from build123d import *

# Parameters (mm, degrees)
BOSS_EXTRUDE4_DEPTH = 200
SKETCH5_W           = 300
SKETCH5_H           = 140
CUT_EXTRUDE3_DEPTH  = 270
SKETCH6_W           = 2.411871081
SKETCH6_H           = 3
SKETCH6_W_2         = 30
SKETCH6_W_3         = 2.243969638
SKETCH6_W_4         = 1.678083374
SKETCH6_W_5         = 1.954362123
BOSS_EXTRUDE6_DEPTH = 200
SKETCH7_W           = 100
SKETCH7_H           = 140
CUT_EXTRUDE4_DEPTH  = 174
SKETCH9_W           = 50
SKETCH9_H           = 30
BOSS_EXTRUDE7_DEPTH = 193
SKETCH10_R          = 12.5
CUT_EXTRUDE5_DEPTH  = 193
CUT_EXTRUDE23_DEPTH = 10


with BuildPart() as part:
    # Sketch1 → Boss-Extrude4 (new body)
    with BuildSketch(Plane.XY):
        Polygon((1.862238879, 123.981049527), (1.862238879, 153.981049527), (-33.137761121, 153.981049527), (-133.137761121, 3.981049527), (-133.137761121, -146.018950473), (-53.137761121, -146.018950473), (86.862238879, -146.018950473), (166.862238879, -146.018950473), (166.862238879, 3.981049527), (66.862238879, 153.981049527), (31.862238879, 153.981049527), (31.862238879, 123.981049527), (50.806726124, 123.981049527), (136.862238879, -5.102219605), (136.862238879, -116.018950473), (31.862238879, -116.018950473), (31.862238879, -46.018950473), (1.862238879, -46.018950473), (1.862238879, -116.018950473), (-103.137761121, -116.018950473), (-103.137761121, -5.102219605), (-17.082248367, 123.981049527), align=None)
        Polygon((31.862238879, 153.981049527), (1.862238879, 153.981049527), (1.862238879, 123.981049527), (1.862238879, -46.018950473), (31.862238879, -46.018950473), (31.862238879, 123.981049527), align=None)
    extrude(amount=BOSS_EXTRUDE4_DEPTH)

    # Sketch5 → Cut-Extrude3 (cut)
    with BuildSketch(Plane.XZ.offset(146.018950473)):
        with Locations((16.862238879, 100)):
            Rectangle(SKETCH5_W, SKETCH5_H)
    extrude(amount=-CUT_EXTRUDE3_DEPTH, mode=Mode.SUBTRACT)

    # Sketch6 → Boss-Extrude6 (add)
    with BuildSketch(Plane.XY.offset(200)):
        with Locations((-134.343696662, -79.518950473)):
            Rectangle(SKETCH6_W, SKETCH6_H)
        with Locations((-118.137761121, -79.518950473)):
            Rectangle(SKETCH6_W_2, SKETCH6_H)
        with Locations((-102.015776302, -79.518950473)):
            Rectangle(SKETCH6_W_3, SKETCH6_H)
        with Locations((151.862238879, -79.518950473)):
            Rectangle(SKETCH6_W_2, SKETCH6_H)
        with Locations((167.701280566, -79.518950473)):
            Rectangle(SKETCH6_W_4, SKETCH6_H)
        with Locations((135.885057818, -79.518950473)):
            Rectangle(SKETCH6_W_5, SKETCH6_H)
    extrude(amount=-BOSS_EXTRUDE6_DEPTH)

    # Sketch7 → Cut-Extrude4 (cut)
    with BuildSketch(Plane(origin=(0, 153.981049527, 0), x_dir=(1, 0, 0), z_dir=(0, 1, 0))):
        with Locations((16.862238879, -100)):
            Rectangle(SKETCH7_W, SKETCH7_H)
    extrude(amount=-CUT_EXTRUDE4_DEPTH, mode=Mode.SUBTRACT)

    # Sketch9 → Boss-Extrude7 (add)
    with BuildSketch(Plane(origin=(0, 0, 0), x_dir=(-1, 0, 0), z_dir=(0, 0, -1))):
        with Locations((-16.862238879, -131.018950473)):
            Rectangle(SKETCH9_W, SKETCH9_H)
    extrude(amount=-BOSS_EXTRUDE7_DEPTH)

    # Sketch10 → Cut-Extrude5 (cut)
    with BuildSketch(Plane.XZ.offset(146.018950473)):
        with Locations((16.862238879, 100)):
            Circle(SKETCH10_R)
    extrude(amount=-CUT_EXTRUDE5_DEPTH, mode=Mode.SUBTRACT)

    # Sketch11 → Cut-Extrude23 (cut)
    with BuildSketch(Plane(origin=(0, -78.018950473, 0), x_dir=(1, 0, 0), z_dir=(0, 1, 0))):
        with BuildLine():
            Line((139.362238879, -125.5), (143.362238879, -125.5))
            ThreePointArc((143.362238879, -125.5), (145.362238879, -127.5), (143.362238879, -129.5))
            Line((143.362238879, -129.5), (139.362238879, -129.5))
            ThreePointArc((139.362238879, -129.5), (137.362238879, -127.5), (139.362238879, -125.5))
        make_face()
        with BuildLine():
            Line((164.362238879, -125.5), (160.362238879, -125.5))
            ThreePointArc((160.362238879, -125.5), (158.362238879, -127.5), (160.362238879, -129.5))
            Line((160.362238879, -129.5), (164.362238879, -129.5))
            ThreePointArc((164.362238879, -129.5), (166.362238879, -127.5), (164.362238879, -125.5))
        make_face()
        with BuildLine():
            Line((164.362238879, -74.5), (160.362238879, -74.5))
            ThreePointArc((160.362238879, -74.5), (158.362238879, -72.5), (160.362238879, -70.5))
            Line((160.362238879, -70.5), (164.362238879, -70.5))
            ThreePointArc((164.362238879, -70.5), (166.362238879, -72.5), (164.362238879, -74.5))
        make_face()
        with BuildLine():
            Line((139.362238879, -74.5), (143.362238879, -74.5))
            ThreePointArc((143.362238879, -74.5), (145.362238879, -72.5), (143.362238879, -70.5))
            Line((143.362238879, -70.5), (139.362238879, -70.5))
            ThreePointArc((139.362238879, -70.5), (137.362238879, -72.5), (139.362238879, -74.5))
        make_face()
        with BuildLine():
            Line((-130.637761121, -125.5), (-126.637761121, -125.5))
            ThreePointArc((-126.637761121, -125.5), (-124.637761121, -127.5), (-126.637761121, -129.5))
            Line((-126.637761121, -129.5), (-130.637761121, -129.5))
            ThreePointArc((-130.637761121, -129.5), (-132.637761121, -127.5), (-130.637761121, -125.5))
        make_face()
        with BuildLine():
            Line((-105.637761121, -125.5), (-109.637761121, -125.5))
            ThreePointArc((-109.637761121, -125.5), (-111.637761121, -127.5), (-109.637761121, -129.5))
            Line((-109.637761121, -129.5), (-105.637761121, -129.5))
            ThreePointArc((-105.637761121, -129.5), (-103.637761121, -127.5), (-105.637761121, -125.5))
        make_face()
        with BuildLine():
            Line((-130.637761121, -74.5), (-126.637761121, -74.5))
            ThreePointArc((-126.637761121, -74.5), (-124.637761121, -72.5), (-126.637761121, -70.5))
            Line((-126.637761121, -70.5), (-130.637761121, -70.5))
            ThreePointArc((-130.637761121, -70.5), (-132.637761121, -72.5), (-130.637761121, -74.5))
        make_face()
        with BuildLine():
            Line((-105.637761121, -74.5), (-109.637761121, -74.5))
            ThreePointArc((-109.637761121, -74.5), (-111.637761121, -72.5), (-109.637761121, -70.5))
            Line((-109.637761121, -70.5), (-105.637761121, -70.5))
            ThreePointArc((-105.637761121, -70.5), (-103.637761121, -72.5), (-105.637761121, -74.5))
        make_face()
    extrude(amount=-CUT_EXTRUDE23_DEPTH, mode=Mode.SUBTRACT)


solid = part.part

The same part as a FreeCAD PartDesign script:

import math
import FreeCAD as App
import Part
import Sketcher

V = App.Vector


def add_polygon(sketch, points):
    """Adds a closed chain of lines whose ends are joined by coincident constraints."""
    first, n = sketch.GeometryCount, len(points)
    for a, b in zip(points, points[1:] + points[:1]):
        sketch.addGeometry(Part.LineSegment(App.Vector(*a, 0), App.Vector(*b, 0)), False)
    for i in range(n):
        sketch.addConstraint(Sketcher.Constraint("Coincident", first + i, 2, first + (i + 1) % n, 1))

doc = App.newDocument("Part")
body = doc.addObject("PartDesign::Body", "Body")

sketch1 = body.newObject("Sketcher::SketchObject", "Sketch")
sketch1.AttachmentSupport = (doc.getObject("XY_Plane"), [""])
sketch1.MapMode = "FlatFace"
add_polygon(sketch1, [(-33, 154), (-133, 4), (-133, -146), (167, -146), (167, 4), (67, 154)])
add_polygon(sketch1, [(32, 124), (51, 124), (137, -5), (137, -116), (32, -116)])
add_polygon(sketch1, [(2, -116), (-103, -116), (-103, -5), (-17, 124), (2, 124)])
sketch1.addConstraint(Sketcher.Constraint("Vertical", 1))
sketch1.addConstraint(Sketcher.Constraint("Horizontal", 2))
sketch1.addConstraint(Sketcher.Constraint("Vertical", 3))
sketch1.addConstraint(Sketcher.Constraint("Horizontal", 5))
sketch1.addConstraint(Sketcher.Constraint("Horizontal", 6))
sketch1.addConstraint(Sketcher.Constraint("Vertical", 8))
sketch1.addConstraint(Sketcher.Constraint("Horizontal", 9))
sketch1.addConstraint(Sketcher.Constraint("Vertical", 10))
sketch1.addConstraint(Sketcher.Constraint("Horizontal", 11))
sketch1.addConstraint(Sketcher.Constraint("Vertical", 12))
sketch1.addConstraint(Sketcher.Constraint("Horizontal", 14))
sketch1.addConstraint(Sketcher.Constraint("Vertical", 15))
sketch1.addConstraint(Sketcher.Constraint("Parallel", 4, 7))
sketch1.addConstraint(Sketcher.Constraint("Parallel", 0, 13))
sketch1.addConstraint(Sketcher.Constraint("Horizontal", 0, 2, 3, 2))
sketch1.addConstraint(Sketcher.Constraint("Horizontal", 9, 2, 11, 2))
sketch1.addConstraint(Sketcher.Constraint("Horizontal", 7, 2, 12, 2))
sketch1.addConstraint(Sketcher.Constraint("Horizontal", 10, 2, 13, 2))
sketch1.addConstraint(Sketcher.Constraint("Equal", 9, 11))
sketch1.addConstraint(Sketcher.Constraint("Equal", 6, 14))
sketch1.addConstraint(Sketcher.Constraint("DistanceX", 2, 1, 2, 2, 300.0))
sketch1.addConstraint(Sketcher.Constraint("DistanceX", 5, 2, 5, 1, 100.0))
sketch1.addConstraint(Sketcher.Constraint("DistanceX", 9, 2, 9, 1, 105.0))
sketch1.addConstraint(Sketcher.Constraint("DistanceY", 1, 2, 1, 1, 150.0))
sketch1.addConstraint(Sketcher.Constraint("DistanceY", 10, 1, 10, 2, 240.0))
sketch1.addConstraint(Sketcher.Constraint("DistanceY", 3, 2, 4, 2, 150.0))
sketch1.addConstraint(Sketcher.Constraint("DistanceY", 6, 2, 4, 2, 30.0))
sketch1.addConstraint(Sketcher.Constraint("DistanceX", 7, 2, 3, 2, 30.0))
sketch1.addConstraint(Sketcher.Constraint("DistanceX", 1, 2, 11, 2, 30.0))
sketch1.addConstraint(Sketcher.Constraint("DistanceY", 8, 2, 8, 1, 110.916731))
sketch1.addConstraint(Sketcher.Constraint("DistanceX", 0, 2, -1, 1, 133.137761))
sketch1.addConstraint(Sketcher.Constraint("DistanceY", -1, 1, 0, 2, 3.98105))
pad1 = body.newObject("PartDesign::Pad", "Pad")
pad1.Profile = sketch1
pad1.Length = 200

sketch2 = body.newObject("Sketcher::SketchObject", "Sketch001")
sketch2.AttachmentSupport = (doc.getObject("XZ_Plane"), [""])
sketch2.MapMode = "FlatFace"
sketch2.AttachmentOffset = App.Placement(V(0, 0, 146.01895), App.Rotation())
add_polygon(sketch2, [(-133, 170), (-133, 30), (167, 30), (167, 170)])
sketch2.addConstraint(Sketcher.Constraint("Vertical", 0))
sketch2.addConstraint(Sketcher.Constraint("Horizontal", 1))
sketch2.addConstraint(Sketcher.Constraint("Vertical", 2))
sketch2.addConstraint(Sketcher.Constraint("Horizontal", 3))
sketch2.addConstraint(Sketcher.Constraint("DistanceX", 1, 1, 1, 2, 300.0))
sketch2.addConstraint(Sketcher.Constraint("DistanceY", 0, 2, 0, 1, 140.0))
sketch2.addConstraint(Sketcher.Constraint("DistanceY", -1, 1, 0, 2, 30.0))
sketch2.addConstraint(Sketcher.Constraint("DistanceX", 0, 2, -1, 1, 133.137761))
pocket1 = body.newObject("PartDesign::Pocket", "Pocket")
pocket1.Profile = sketch2
pocket1.Length = 270

sketch3 = body.newObject("Sketcher::SketchObject", "Sketch002")
sketch3.AttachmentSupport = (doc.getObject("XY_Plane"), [""])
sketch3.MapMode = "FlatFace"
sketch3.AttachmentOffset = App.Placement(V(0, 0, 200), App.Rotation())
add_polygon(sketch3, [(-135.5, -78), (-135.5, -81), (-100.9, -81), (-100.9, -78)])
add_polygon(sketch3, [(168.5, -81), (168.5, -78), (134.9, -78), (134.9, -81)])
sketch3.addConstraint(Sketcher.Constraint("Vertical", 0))
sketch3.addConstraint(Sketcher.Constraint("Horizontal", 1))
sketch3.addConstraint(Sketcher.Constraint("Vertical", 2))
sketch3.addConstraint(Sketcher.Constraint("Horizontal", 3))
sketch3.addConstraint(Sketcher.Constraint("Vertical", 4))
sketch3.addConstraint(Sketcher.Constraint("Horizontal", 5))
sketch3.addConstraint(Sketcher.Constraint("Vertical", 6))
sketch3.addConstraint(Sketcher.Constraint("Horizontal", 7))
sketch3.addConstraint(Sketcher.Constraint("Horizontal", 3, 2, 4, 2))
sketch3.addConstraint(Sketcher.Constraint("Horizontal", 1, 2, 6, 2))
sketch3.addConstraint(Sketcher.Constraint("DistanceY", 0, 2, 0, 1, 3.0))
sketch3.addConstraint(Sketcher.Constraint("DistanceX", 1, 1, 1, 2, 34.655841))
sketch3.addConstraint(Sketcher.Constraint("DistanceX", 5, 2, 5, 1, 33.632445))
sketch3.addConstraint(Sketcher.Constraint("DistanceY", 0, 2, -1, 1, 81.01895))
sketch3.addConstraint(Sketcher.Constraint("DistanceX", 1, 2, -1, 1, 100.893791))
sketch3.addConstraint(Sketcher.Constraint("DistanceX", 2, 2, 5, 2, 235.801668))
pad2 = body.newObject("PartDesign::Pad", "Pad001")
pad2.Profile = sketch3
pad2.Length = 200
pad2.Reversed = True

sketch4 = body.newObject("Sketcher::SketchObject", "Sketch003")
sketch4.AttachmentSupport = (doc.getObject("XZ_Plane"), [""])
sketch4.MapMode = "FlatFace"
sketch4.AttachmentOffset = App.Placement(V(0, 0, -153.98105), App.Rotation())
add_polygon(sketch4, [(-33, 30), (-33, 170), (67, 170), (67, 30)])
sketch4.addConstraint(Sketcher.Constraint("Vertical", 0))
sketch4.addConstraint(Sketcher.Constraint("Horizontal", 1))
sketch4.addConstraint(Sketcher.Constraint("Vertical", 2))
sketch4.addConstraint(Sketcher.Constraint("Horizontal", 3))
sketch4.addConstraint(Sketcher.Constraint("DistanceX", 1, 1, 1, 2, 100.0))
sketch4.addConstraint(Sketcher.Constraint("DistanceY", 0, 1, 0, 2, 140.0))
sketch4.addConstraint(Sketcher.Constraint("DistanceY", -1, 1, 0, 2, 170.0))
sketch4.addConstraint(Sketcher.Constraint("DistanceX", 0, 2, -1, 1, 33.137761))
pocket2 = body.newObject("PartDesign::Pocket", "Pocket001")
pocket2.Profile = sketch4
pocket2.Length = 174
pocket2.Reversed = True

sketch5 = body.newObject("Sketcher::SketchObject", "Sketch004")
sketch5.AttachmentSupport = (doc.getObject("XY_Plane"), [""])
sketch5.MapMode = "FlatFace"
add_polygon(sketch5, [(42, -116), (42, -146), (-8, -146), (-8, -116)])
sketch5.addConstraint(Sketcher.Constraint("Vertical", 0))
sketch5.addConstraint(Sketcher.Constraint("Horizontal", 1))
sketch5.addConstraint(Sketcher.Constraint("Vertical", 2))
sketch5.addConstraint(Sketcher.Constraint("Horizontal", 3))
sketch5.addConstraint(Sketcher.Constraint("DistanceX", 1, 2, 1, 1, 50.0))
sketch5.addConstraint(Sketcher.Constraint("DistanceY", 0, 2, 0, 1, 30.0))
sketch5.addConstraint(Sketcher.Constraint("DistanceX", -1, 1, 0, 2, 41.862239))
sketch5.addConstraint(Sketcher.Constraint("DistanceY", 0, 2, -1, 1, 146.01895))
pad3 = body.newObject("PartDesign::Pad", "Pad002")
pad3.Profile = sketch5
pad3.Length = 193

sketch6 = body.newObject("Sketcher::SketchObject", "Sketch005")
sketch6.AttachmentSupport = (doc.getObject("XZ_Plane"), [""])
sketch6.MapMode = "FlatFace"
sketch6.AttachmentOffset = App.Placement(V(0, 0, 146.01895), App.Rotation())
sketch6.addGeometry(Part.Circle(V(17, 100, 0), V(0, 0, 1), 12), False)
sketch6.addConstraint(Sketcher.Constraint("Diameter", 0, 25.0))
sketch6.addConstraint(Sketcher.Constraint("DistanceY", -1, 1, 0, 3, 100.0))
sketch6.addConstraint(Sketcher.Constraint("DistanceX", -1, 1, 0, 3, 16.862239))
pocket3 = body.newObject("PartDesign::Pocket", "Pocket002")
pocket3.Profile = sketch6
pocket3.Length = 193

sketch7 = body.newObject("Sketcher::SketchObject", "Sketch006")
sketch7.AttachmentSupport = (doc.getObject("XZ_Plane"), [""])
sketch7.MapMode = "FlatFace"
sketch7.AttachmentOffset = App.Placement(V(0, 0, 78.01895), App.Rotation())
sketch7.addGeometry(Part.LineSegment(V(143.4, 125.5, 0), V(139.4, 125.5, 0)), False)
sketch7.addGeometry(Part.ArcOfCircle(Part.Circle(V(139.4, 127.5, 0), V(0, 0, 1), 2), math.radians(90), math.radians(270)), False)
sketch7.addGeometry(Part.LineSegment(V(139.4, 129.5, 0), V(143.4, 129.5, 0)), False)
sketch7.addGeometry(Part.ArcOfCircle(Part.Circle(V(143.4, 127.5, 0), V(0, 0, 1), 2), math.radians(-90), math.radians(90)), False)
sketch7.addGeometry(Part.LineSegment(V(164.4, 125.5, 0), V(160.4, 125.5, 0)), False)
sketch7.addGeometry(Part.ArcOfCircle(Part.Circle(V(160.4, 127.5, 0), V(0, 0, 1), 2), math.radians(90), math.radians(270)), False)
sketch7.addGeometry(Part.LineSegment(V(160.4, 129.5, 0), V(164.4, 129.5, 0)), False)
sketch7.addGeometry(Part.ArcOfCircle(Part.Circle(V(164.4, 127.5, 0), V(0, 0, 1), 2), math.radians(-90), math.radians(90)), False)
sketch7.addGeometry(Part.LineSegment(V(160.4, 74.5, 0), V(164.4, 74.5, 0)), False)
sketch7.addGeometry(Part.ArcOfCircle(Part.Circle(V(164.4, 72.5, 0), V(0, 0, 1), 2), math.radians(-90), math.radians(90)), False)
sketch7.addGeometry(Part.LineSegment(V(164.4, 70.5, 0), V(160.4, 70.5, 0)), False)
sketch7.addGeometry(Part.ArcOfCircle(Part.Circle(V(160.4, 72.5, 0), V(0, 0, 1), 2), math.radians(90), math.radians(270)), False)
sketch7.addGeometry(Part.LineSegment(V(139.4, 74.5, 0), V(143.4, 74.5, 0)), False)
sketch7.addGeometry(Part.ArcOfCircle(Part.Circle(V(143.4, 72.5, 0), V(0, 0, 1), 2), math.radians(-90), math.radians(90)), False)
sketch7.addGeometry(Part.LineSegment(V(143.4, 70.5, 0), V(139.4, 70.5, 0)), False)
sketch7.addGeometry(Part.ArcOfCircle(Part.Circle(V(139.4, 72.5, 0), V(0, 0, 1), 2), math.radians(90), math.radians(270)), False)
sketch7.addGeometry(Part.LineSegment(V(-126.6, 125.5, 0), V(-130.6, 125.5, 0)), False)
sketch7.addGeometry(Part.ArcOfCircle(Part.Circle(V(-130.6, 127.5, 0), V(0, 0, 1), 2), math.radians(90), math.radians(270)), False)
sketch7.addGeometry(Part.LineSegment(V(-130.6, 129.5, 0), V(-126.6, 129.5, 0)), False)
sketch7.addGeometry(Part.ArcOfCircle(Part.Circle(V(-126.6, 127.5, 0), V(0, 0, 1), 2), math.radians(-90), math.radians(90)), False)
sketch7.addGeometry(Part.LineSegment(V(-105.6, 125.5, 0), V(-109.6, 125.5, 0)), False)
sketch7.addGeometry(Part.ArcOfCircle(Part.Circle(V(-109.6, 127.5, 0), V(0, 0, 1), 2), math.radians(90), math.radians(270)), False)
sketch7.addGeometry(Part.LineSegment(V(-109.6, 129.5, 0), V(-105.6, 129.5, 0)), False)
sketch7.addGeometry(Part.ArcOfCircle(Part.Circle(V(-105.6, 127.5, 0), V(0, 0, 1), 2), math.radians(-90), math.radians(90)), False)
sketch7.addGeometry(Part.LineSegment(V(-130.6, 74.5, 0), V(-126.6, 74.5, 0)), False)
sketch7.addGeometry(Part.ArcOfCircle(Part.Circle(V(-126.6, 72.5, 0), V(0, 0, 1), 2), math.radians(-90), math.radians(90)), False)
sketch7.addGeometry(Part.LineSegment(V(-126.6, 70.5, 0), V(-130.6, 70.5, 0)), False)
sketch7.addGeometry(Part.ArcOfCircle(Part.Circle(V(-130.6, 72.5, 0), V(0, 0, 1), 2), math.radians(90), math.radians(270)), False)
sketch7.addGeometry(Part.LineSegment(V(-109.6, 74.5, 0), V(-105.6, 74.5, 0)), False)
sketch7.addGeometry(Part.ArcOfCircle(Part.Circle(V(-105.6, 72.5, 0), V(0, 0, 1), 2), math.radians(-90), math.radians(90)), False)
sketch7.addGeometry(Part.LineSegment(V(-105.6, 70.5, 0), V(-109.6, 70.5, 0)), False)
sketch7.addGeometry(Part.ArcOfCircle(Part.Circle(V(-109.6, 72.5, 0), V(0, 0, 1), 2), math.radians(90), math.radians(270)), False)
sketch7.addConstraint(Sketcher.Constraint("Tangent", 0, 2, 1, 2))
sketch7.addConstraint(Sketcher.Constraint("Tangent", 1, 1, 2, 1))
sketch7.addConstraint(Sketcher.Constraint("Tangent", 2, 2, 3, 2))
sketch7.addConstraint(Sketcher.Constraint("Tangent", 3, 1, 0, 1))
sketch7.addConstraint(Sketcher.Constraint("Tangent", 4, 2, 5, 2))
sketch7.addConstraint(Sketcher.Constraint("Tangent", 5, 1, 6, 1))
sketch7.addConstraint(Sketcher.Constraint("Tangent", 6, 2, 7, 2))
sketch7.addConstraint(Sketcher.Constraint("Tangent", 7, 1, 4, 1))
sketch7.addConstraint(Sketcher.Constraint("Tangent", 8, 2, 9, 2))
sketch7.addConstraint(Sketcher.Constraint("Tangent", 9, 1, 10, 1))
sketch7.addConstraint(Sketcher.Constraint("Tangent", 10, 2, 11, 2))
sketch7.addConstraint(Sketcher.Constraint("Tangent", 11, 1, 8, 1))
sketch7.addConstraint(Sketcher.Constraint("Tangent", 12, 2, 13, 2))
sketch7.addConstraint(Sketcher.Constraint("Tangent", 13, 1, 14, 1))
sketch7.addConstraint(Sketcher.Constraint("Tangent", 14, 2, 15, 2))
sketch7.addConstraint(Sketcher.Constraint("Tangent", 15, 1, 12, 1))
sketch7.addConstraint(Sketcher.Constraint("Tangent", 16, 2, 17, 2))
sketch7.addConstraint(Sketcher.Constraint("Tangent", 17, 1, 18, 1))
sketch7.addConstraint(Sketcher.Constraint("Tangent", 18, 2, 19, 2))
sketch7.addConstraint(Sketcher.Constraint("Tangent", 19, 1, 16, 1))
sketch7.addConstraint(Sketcher.Constraint("Tangent", 20, 2, 21, 2))
sketch7.addConstraint(Sketcher.Constraint("Tangent", 21, 1, 22, 1))
sketch7.addConstraint(Sketcher.Constraint("Tangent", 22, 2, 23, 2))
sketch7.addConstraint(Sketcher.Constraint("Tangent", 23, 1, 20, 1))
sketch7.addConstraint(Sketcher.Constraint("Tangent", 24, 2, 25, 2))
sketch7.addConstraint(Sketcher.Constraint("Tangent", 25, 1, 26, 1))
sketch7.addConstraint(Sketcher.Constraint("Tangent", 26, 2, 27, 2))
sketch7.addConstraint(Sketcher.Constraint("Tangent", 27, 1, 24, 1))
sketch7.addConstraint(Sketcher.Constraint("Tangent", 28, 2, 29, 2))
sketch7.addConstraint(Sketcher.Constraint("Tangent", 29, 1, 30, 1))
sketch7.addConstraint(Sketcher.Constraint("Tangent", 30, 2, 31, 2))
sketch7.addConstraint(Sketcher.Constraint("Tangent", 31, 1, 28, 1))
sketch7.addConstraint(Sketcher.Constraint("Horizontal", 0))
sketch7.addConstraint(Sketcher.Constraint("Horizontal", 2))
sketch7.addConstraint(Sketcher.Constraint("Horizontal", 4))
sketch7.addConstraint(Sketcher.Constraint("Horizontal", 6))
sketch7.addConstraint(Sketcher.Constraint("Horizontal", 8))
sketch7.addConstraint(Sketcher.Constraint("Horizontal", 10))
sketch7.addConstraint(Sketcher.Constraint("Horizontal", 12))
sketch7.addConstraint(Sketcher.Constraint("Horizontal", 14))
sketch7.addConstraint(Sketcher.Constraint("Horizontal", 16))
sketch7.addConstraint(Sketcher.Constraint("Horizontal", 18))
sketch7.addConstraint(Sketcher.Constraint("Horizontal", 20))
sketch7.addConstraint(Sketcher.Constraint("Horizontal", 22))
sketch7.addConstraint(Sketcher.Constraint("Horizontal", 24))
sketch7.addConstraint(Sketcher.Constraint("Horizontal", 26))
sketch7.addConstraint(Sketcher.Constraint("Horizontal", 28))
sketch7.addConstraint(Sketcher.Constraint("Horizontal", 30))
sketch7.addConstraint(Sketcher.Constraint("Equal", 3, 5))
sketch7.addConstraint(Sketcher.Constraint("Equal", 7, 9))
sketch7.addConstraint(Sketcher.Constraint("Equal", 11, 13))
sketch7.addConstraint(Sketcher.Constraint("Equal", 15, 17))
sketch7.addConstraint(Sketcher.Constraint("Equal", 19, 21))
sketch7.addConstraint(Sketcher.Constraint("Equal", 23, 25))
sketch7.addConstraint(Sketcher.Constraint("Equal", 27, 29))
sketch7.addConstraint(Sketcher.Constraint("Horizontal", 3, 3, 5, 3))
sketch7.addConstraint(Sketcher.Constraint("Horizontal", 11, 3, 13, 3))
sketch7.addConstraint(Sketcher.Constraint("Horizontal", 7, 3, 17, 3))
sketch7.addConstraint(Sketcher.Constraint("Horizontal", 19, 3, 21, 3))
sketch7.addConstraint(Sketcher.Constraint("Horizontal", 15, 3, 25, 3))
sketch7.addConstraint(Sketcher.Constraint("Horizontal", 27, 3, 29, 3))
sketch7.addConstraint(Sketcher.Constraint("Vertical", 7, 3, 9, 3))
sketch7.addConstraint(Sketcher.Constraint("Vertical", 5, 3, 11, 3))
sketch7.addConstraint(Sketcher.Constraint("Vertical", 3, 3, 13, 3))
sketch7.addConstraint(Sketcher.Constraint("Vertical", 1, 3, 15, 3))
sketch7.addConstraint(Sketcher.Constraint("Vertical", 19, 3, 25, 3))
sketch7.addConstraint(Sketcher.Constraint("Vertical", 17, 3, 27, 3))
sketch7.addConstraint(Sketcher.Constraint("Vertical", 23, 3, 29, 3))
sketch7.addConstraint(Sketcher.Constraint("Vertical", 21, 3, 31, 3))
sketch7.addConstraint(Sketcher.Constraint("Equal", 2, 4))
sketch7.addConstraint(Sketcher.Constraint("Equal", 14, 16))
sketch7.addConstraint(Sketcher.Constraint("Equal", 18, 20))
sketch7.addConstraint(Sketcher.Constraint("Radius", 1, 2.0))
sketch7.addConstraint(Sketcher.Constraint("DistanceX", 0, 2, 0, 1, 4.0))
sketch7.addConstraint(Sketcher.Constraint("DistanceX", 3, 3, 5, 3, 17.0))
sketch7.addConstraint(Sketcher.Constraint("DistanceY", 9, 3, 7, 3, 55.0))
sketch7.addConstraint(Sketcher.Constraint("DistanceX", 17, 3, 1, 3, 270.0))
sketch7.addConstraint(Sketcher.Constraint("DistanceX", 19, 3, 21, 3, 17.0))
sketch7.addConstraint(Sketcher.Constraint("DistanceY", -1, 1, 1, 3, 127.5))
sketch7.addConstraint(Sketcher.Constraint("DistanceX", -1, 1, 1, 3, 139.362239))
pocket4 = body.newObject("PartDesign::Pocket", "Pocket003")
pocket4.Profile = sketch7
pocket4.Length = 10
pocket4.Reversed = True

doc.recompute()
